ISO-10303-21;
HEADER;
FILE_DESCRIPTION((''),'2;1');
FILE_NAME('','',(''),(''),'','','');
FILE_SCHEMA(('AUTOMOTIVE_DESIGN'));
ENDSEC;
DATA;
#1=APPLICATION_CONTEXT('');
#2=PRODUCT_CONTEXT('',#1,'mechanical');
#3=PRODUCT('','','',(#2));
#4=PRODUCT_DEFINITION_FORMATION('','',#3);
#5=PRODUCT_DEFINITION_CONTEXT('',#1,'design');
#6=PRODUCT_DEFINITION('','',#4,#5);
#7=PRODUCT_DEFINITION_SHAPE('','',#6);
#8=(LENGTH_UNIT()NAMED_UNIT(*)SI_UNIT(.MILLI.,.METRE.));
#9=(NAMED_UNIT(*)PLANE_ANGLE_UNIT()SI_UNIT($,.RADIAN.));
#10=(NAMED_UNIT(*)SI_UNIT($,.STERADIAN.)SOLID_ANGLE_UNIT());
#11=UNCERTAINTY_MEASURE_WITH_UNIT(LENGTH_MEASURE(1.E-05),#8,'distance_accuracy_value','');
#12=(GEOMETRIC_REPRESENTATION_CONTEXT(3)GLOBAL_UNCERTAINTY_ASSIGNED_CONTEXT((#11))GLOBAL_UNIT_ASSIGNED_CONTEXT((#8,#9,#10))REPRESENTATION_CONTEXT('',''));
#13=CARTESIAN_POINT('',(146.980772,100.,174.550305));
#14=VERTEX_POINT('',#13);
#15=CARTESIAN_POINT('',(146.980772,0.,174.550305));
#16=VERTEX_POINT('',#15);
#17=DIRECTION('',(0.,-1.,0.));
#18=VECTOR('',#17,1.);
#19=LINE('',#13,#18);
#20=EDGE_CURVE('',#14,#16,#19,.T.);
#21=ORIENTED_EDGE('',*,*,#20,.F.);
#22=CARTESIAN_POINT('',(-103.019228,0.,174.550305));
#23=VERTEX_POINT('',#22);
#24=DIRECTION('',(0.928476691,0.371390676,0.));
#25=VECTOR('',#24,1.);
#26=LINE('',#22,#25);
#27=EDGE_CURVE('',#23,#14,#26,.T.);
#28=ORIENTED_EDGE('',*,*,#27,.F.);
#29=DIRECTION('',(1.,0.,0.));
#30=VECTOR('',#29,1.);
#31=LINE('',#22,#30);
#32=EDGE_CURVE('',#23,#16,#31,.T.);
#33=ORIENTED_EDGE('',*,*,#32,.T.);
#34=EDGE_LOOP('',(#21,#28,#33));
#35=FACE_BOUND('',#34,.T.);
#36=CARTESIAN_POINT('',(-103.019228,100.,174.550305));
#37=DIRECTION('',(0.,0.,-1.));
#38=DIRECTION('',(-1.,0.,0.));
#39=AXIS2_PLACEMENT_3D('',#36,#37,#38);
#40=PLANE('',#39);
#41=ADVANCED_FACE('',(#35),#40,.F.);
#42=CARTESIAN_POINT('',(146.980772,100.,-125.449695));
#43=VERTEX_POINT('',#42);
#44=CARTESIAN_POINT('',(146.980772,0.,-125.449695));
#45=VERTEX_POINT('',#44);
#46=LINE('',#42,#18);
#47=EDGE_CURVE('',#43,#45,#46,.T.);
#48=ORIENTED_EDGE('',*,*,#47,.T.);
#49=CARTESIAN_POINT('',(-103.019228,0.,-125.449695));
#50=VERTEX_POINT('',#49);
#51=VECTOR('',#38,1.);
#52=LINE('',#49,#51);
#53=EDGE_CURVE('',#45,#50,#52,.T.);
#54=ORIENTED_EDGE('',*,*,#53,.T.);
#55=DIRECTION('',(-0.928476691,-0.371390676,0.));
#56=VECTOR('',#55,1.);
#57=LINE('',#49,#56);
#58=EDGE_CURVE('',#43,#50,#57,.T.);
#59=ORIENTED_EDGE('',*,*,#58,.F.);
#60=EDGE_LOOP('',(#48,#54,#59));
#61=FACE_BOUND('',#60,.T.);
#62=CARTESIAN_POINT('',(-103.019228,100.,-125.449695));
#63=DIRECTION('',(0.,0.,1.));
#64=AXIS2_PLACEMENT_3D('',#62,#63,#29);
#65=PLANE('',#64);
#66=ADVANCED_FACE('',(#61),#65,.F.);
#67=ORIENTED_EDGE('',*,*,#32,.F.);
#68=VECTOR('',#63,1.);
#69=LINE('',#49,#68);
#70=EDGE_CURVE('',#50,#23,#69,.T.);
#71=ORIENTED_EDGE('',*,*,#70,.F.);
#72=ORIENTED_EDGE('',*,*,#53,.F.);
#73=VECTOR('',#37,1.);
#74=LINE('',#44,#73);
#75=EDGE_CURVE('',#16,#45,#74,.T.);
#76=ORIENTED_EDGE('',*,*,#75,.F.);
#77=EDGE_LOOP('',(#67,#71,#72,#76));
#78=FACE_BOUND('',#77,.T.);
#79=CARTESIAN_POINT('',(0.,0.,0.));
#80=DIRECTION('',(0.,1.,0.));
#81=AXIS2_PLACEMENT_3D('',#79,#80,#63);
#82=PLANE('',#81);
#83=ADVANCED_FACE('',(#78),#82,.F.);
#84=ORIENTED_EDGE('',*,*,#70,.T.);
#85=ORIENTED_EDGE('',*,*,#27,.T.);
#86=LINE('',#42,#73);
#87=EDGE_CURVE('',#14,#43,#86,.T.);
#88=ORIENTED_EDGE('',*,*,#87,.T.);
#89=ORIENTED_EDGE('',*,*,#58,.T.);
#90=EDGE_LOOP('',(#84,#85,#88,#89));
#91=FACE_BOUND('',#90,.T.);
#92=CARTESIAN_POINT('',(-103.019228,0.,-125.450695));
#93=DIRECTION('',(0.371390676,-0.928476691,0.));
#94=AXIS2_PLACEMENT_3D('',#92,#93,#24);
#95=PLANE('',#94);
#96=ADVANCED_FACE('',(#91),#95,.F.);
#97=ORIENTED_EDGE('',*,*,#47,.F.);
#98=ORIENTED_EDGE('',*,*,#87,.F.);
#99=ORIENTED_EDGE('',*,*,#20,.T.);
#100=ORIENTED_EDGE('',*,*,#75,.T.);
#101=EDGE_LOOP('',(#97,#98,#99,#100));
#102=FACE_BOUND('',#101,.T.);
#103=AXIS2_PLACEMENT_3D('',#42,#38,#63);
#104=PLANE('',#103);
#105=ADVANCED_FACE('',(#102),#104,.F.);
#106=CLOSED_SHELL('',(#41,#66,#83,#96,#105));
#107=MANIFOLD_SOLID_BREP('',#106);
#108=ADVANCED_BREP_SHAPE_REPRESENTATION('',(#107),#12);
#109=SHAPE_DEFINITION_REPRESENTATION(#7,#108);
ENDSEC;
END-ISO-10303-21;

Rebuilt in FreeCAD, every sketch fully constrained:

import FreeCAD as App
import Part
import Sketcher
from FreeCAD import Vector
Q = App.Units.Quantity

doc = App.newDocument("Part")
body = doc.addObject("PartDesign::Body", "Body")

sketch1 = body.newObject("Sketcher::SketchObject", "Sketch")
sketch1.AttachmentSupport = (doc.getObject("XZ_Plane"), [""])
sketch1.MapMode = "FlatFace"
sketch1.addGeometry([
    Part.LineSegment(Vector(-103.019228, -125.449695, 0), Vector(-103.019228, 174.550305, 0)),
    Part.LineSegment(Vector(-103.019228, 174.550305, 0), Vector(146.980772, 174.550305, 0)),
    Part.LineSegment(Vector(146.980772, 174.550305, 0), Vector(146.980772, -125.449695, 0)),
    Part.LineSegment(Vector(146.980772, -125.449695, 0), Vector(-103.019228, -125.449695, 0)),
], False)
sketch1.addConstraint([
    Sketcher.Constraint("Coincident", 0, 2, 1, 1),
    Sketcher.Constraint("Coincident", 1, 2, 2, 1),
    Sketcher.Constraint("Coincident", 2, 2, 3, 1),
    Sketcher.Constraint("Coincident", 3, 2, 0, 1),
    Sketcher.Constraint("Vertical", 0),
    Sketcher.Constraint("Horizontal", 1),
    Sketcher.Constraint("Vertical", 2),
    Sketcher.Constraint("Horizontal", 3),
    Sketcher.Constraint("DistanceX", 1, 1, 1, 2, Q("250 mm")),
    Sketcher.Constraint("DistanceY", 0, 1, 0, 2, Q("300 mm")),
    Sketcher.Constraint("DistanceX", 0, 2, -1, 1, Q("103.019228 mm")),
    Sketcher.Constraint("DistanceY", -1, 1, 0, 2, Q("174.550305 mm")),
])
pad1 = body.newObject("PartDesign::Pad", "Pad")
pad1.Profile = sketch1
pad1.Length = 100
pad1.Reversed = True

sketch2 = body.newObject("Sketcher::SketchObject", "Sketch001")
sketch2.AttachmentSupport = (doc.getObject("XY_Plane"), [""])
sketch2.MapMode = "FlatFace"
sketch2.AttachmentOffset = App.Placement(Vector(0, 0, 174.550305), App.Rotation())
sketch2.addGeometry([
    Part.LineSegment(Vector(-103.019228, 0, 0), Vector(146.980772, 100, 0)),
    Part.LineSegment(Vector(146.980772, 100, 0), Vector(-103.019228, 100, 0)),
    Part.LineSegment(Vector(-103.019228, 100, 0), Vector(-103.019228, 0, 0)),
], False)
sketch2.addConstraint([
    Sketcher.Constraint("Coincident", 0, 2, 1, 1),
    Sketcher.Constraint("Coincident", 1, 2, 2, 1),
    Sketcher.Constraint("Coincident", 2, 2, 0, 1),
    Sketcher.Constraint("Horizontal", 1),
    Sketcher.Constraint("Vertical", 2),
    Sketcher.Constraint("PointOnObject", 2, 2, -1),
    Sketcher.Constraint("DistanceX", 1, 2, 1, 1, Q("250 mm")),
    Sketcher.Constraint("DistanceY", 2, 2, 2, 1, Q("100 mm")),
    Sketcher.Constraint("DistanceX", -1, 1, 0, 2, Q("146.980772 mm")),
])
pocket1 = body.newObject("PartDesign::Pocket", "Pocket")
pocket1.Profile = sketch2
pocket1.Type = "UpToFirst"

doc.recompute()
